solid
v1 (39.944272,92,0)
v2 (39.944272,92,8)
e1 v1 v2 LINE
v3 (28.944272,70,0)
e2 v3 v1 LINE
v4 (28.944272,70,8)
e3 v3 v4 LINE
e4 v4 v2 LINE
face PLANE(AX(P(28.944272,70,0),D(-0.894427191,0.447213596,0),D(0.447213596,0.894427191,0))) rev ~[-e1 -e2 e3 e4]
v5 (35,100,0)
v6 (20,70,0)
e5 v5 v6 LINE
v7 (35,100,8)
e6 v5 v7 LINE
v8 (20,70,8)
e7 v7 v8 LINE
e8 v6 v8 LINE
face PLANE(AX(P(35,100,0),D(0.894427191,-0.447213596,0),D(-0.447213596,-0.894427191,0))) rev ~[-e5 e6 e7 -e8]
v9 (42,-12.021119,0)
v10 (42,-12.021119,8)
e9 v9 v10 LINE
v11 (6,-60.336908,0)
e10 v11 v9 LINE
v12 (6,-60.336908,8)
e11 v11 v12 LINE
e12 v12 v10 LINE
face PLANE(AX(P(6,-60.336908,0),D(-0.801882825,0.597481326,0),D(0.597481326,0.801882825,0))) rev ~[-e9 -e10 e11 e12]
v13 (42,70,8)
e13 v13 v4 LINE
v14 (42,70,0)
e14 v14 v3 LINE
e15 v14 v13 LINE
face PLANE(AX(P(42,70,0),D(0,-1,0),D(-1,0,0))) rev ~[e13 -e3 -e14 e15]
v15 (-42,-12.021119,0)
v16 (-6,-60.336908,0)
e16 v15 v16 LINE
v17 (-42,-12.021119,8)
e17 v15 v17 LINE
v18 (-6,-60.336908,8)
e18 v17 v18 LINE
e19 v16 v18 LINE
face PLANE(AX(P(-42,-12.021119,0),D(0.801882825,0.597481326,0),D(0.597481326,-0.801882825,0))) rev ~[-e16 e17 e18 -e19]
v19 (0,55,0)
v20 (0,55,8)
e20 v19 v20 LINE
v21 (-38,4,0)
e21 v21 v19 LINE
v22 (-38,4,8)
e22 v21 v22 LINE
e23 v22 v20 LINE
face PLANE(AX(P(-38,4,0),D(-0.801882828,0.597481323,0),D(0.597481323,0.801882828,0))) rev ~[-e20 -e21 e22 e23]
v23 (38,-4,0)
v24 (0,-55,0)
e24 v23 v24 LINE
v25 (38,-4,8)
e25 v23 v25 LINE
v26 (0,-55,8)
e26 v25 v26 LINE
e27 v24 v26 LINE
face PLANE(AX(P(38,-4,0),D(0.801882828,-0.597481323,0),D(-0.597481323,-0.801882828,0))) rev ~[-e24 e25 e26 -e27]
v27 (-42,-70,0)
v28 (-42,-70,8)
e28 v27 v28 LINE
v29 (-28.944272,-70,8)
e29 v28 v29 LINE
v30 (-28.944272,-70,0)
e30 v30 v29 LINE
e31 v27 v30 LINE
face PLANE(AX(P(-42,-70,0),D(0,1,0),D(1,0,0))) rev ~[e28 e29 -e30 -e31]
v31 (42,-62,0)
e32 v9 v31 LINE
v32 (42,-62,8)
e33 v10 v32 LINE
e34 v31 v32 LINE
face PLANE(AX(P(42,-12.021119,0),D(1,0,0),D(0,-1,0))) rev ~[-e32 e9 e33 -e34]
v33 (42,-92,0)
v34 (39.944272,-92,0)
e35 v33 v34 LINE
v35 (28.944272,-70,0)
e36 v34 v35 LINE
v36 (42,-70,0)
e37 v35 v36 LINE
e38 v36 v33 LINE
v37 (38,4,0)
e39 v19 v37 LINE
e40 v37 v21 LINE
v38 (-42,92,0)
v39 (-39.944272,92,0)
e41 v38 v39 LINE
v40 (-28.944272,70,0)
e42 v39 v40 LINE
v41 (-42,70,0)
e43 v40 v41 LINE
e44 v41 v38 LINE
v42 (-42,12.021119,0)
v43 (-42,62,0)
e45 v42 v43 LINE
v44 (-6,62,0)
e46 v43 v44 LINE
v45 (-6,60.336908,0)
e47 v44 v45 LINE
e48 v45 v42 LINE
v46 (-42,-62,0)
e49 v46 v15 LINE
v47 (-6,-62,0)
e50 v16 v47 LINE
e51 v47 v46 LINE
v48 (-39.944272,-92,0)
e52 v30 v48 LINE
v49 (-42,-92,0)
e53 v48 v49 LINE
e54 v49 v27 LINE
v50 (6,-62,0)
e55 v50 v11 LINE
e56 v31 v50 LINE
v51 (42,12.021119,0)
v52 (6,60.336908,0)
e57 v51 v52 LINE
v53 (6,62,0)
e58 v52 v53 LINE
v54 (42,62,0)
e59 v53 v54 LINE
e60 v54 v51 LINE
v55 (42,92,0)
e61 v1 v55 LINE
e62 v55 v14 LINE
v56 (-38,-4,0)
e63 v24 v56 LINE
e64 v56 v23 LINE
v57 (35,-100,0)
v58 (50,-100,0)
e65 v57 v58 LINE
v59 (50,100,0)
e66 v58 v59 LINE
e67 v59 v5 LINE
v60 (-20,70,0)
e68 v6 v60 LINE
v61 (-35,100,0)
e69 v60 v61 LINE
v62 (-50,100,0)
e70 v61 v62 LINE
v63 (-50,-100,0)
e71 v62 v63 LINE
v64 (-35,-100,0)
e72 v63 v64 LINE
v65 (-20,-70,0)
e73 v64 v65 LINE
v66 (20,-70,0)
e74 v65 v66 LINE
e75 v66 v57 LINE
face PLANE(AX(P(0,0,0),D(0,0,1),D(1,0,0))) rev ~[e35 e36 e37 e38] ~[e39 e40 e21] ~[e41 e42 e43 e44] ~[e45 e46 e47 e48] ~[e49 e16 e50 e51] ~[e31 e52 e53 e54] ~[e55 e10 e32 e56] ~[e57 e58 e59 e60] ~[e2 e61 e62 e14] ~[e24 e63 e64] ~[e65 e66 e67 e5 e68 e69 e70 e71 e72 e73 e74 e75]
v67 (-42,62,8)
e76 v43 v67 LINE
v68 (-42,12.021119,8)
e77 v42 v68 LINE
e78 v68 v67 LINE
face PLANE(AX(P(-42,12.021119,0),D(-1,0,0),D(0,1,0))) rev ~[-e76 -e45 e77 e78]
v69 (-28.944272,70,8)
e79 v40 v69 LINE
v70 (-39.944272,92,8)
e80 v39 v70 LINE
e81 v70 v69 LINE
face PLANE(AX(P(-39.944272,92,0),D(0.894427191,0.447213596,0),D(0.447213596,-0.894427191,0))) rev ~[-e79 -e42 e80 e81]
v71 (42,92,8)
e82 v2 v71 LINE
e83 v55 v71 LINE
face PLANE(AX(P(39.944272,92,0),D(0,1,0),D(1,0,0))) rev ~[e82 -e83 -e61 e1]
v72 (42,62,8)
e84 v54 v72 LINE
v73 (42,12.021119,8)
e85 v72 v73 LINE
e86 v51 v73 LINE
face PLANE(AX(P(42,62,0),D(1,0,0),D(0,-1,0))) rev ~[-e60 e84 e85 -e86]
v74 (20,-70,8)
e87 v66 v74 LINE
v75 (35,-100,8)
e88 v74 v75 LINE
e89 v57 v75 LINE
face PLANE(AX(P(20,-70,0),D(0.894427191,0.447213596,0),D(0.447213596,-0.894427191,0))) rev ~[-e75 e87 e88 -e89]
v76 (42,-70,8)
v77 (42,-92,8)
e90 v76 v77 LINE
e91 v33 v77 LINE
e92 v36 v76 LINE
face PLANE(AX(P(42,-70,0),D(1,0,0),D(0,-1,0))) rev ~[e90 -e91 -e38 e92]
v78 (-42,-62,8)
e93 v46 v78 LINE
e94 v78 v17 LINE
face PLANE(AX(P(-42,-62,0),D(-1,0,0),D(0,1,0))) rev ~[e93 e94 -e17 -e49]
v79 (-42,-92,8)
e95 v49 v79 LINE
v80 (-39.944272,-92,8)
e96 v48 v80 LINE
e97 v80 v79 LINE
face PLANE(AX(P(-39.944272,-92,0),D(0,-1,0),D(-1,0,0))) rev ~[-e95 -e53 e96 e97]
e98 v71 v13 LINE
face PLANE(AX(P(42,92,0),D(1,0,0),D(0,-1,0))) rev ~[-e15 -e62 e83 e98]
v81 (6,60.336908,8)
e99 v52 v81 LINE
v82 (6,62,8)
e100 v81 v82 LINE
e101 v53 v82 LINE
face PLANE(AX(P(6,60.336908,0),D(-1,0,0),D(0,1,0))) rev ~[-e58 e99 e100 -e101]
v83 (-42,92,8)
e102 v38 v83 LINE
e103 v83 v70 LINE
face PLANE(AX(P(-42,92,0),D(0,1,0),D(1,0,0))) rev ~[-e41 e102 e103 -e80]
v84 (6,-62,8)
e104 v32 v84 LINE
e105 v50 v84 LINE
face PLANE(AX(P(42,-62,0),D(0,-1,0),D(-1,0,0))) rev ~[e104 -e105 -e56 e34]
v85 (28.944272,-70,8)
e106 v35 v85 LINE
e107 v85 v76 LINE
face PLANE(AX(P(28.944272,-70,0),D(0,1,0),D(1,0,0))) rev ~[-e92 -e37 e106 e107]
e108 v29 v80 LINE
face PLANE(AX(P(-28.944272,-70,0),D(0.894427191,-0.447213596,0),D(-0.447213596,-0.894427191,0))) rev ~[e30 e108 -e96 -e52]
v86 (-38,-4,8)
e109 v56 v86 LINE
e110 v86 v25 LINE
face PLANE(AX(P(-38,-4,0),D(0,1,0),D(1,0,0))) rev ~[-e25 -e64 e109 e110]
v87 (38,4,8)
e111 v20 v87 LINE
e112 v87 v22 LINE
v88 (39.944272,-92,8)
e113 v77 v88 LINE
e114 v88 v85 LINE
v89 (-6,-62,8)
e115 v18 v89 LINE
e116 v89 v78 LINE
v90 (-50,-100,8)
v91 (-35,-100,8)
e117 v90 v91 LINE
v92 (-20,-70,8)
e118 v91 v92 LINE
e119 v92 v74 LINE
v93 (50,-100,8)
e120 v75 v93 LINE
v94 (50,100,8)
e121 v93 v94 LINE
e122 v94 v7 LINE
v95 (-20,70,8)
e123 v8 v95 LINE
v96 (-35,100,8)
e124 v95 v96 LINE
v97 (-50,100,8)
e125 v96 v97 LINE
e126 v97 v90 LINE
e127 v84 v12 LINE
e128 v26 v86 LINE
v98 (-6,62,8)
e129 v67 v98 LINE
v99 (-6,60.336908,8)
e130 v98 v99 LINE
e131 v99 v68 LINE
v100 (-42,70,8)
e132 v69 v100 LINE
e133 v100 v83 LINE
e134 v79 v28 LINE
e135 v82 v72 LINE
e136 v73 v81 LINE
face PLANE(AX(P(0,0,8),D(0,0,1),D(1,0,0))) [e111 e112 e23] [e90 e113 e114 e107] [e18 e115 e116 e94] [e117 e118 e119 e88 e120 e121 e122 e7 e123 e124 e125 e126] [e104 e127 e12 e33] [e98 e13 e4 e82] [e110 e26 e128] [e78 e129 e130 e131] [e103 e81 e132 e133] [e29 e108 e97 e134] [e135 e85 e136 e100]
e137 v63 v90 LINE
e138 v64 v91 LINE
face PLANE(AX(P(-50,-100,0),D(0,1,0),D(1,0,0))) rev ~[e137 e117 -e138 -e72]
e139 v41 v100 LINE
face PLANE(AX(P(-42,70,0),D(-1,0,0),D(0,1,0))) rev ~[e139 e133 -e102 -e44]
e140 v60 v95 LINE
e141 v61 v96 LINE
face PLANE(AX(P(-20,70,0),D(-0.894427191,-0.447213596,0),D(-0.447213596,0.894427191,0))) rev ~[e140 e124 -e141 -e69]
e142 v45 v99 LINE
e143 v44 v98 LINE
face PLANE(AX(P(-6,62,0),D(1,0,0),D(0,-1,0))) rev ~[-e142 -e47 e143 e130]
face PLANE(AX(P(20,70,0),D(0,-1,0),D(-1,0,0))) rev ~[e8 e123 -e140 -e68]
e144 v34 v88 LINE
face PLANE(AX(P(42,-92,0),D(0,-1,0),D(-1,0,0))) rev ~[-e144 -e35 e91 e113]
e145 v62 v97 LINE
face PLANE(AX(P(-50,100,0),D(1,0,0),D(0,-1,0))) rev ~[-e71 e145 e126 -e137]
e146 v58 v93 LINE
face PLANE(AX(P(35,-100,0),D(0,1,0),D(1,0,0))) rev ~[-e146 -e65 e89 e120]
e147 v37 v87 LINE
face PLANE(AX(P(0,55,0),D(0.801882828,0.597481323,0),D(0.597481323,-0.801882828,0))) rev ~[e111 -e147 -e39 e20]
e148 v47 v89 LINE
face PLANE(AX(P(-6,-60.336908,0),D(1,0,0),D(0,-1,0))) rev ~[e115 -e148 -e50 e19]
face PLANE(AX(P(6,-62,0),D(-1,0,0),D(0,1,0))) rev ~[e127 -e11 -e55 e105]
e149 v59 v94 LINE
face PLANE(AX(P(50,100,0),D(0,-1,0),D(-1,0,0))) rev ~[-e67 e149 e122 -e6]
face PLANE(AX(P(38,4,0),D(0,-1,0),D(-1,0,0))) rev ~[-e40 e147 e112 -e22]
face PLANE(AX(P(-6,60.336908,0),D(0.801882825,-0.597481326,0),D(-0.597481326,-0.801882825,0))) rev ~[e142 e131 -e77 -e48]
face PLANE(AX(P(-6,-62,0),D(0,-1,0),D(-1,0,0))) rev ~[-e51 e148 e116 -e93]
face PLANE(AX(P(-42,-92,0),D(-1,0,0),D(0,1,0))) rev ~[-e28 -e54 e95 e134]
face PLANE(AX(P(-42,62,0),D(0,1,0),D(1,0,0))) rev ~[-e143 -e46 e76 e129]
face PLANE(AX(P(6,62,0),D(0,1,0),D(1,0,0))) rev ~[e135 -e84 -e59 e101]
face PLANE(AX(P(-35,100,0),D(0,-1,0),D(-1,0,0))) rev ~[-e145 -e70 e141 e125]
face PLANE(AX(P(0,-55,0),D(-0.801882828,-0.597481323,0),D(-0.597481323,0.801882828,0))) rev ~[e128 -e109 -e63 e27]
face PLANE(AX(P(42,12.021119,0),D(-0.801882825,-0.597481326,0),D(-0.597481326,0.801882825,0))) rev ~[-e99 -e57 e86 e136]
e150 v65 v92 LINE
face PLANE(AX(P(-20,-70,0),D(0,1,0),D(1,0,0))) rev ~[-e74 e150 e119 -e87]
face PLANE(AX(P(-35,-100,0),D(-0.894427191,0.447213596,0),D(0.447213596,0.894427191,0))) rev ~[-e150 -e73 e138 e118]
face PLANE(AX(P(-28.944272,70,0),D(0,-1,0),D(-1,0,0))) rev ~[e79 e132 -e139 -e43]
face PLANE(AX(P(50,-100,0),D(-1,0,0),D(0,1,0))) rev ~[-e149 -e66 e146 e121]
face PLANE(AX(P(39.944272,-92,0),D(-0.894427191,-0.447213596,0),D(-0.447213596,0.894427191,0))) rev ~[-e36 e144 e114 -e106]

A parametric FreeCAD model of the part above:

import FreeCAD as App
import Part
import Sketcher

V = App.Vector


def add_polygon(sketch, points):
    """Adds a closed chain of lines whose ends are joined by coincident constraints."""
    first, n = sketch.GeometryCount, len(points)
    for a, b in zip(points, points[1:] + points[:1]):
        sketch.addGeometry(Part.LineSegment(App.Vector(*a, 0), App.Vector(*b, 0)), False)
    for i in range(n):
        sketch.addConstraint(Sketcher.Constraint("Coincident", first + i, 2, first + (i + 1) % n, 1))

doc = App.newDocument("Part")
body = doc.addObject("PartDesign::Body", "Body")

sketch1 = doc.addObject("Sketcher::SketchObject", "Sketch")
body.addObject(sketch1)
sketch1.AttachmentSupport = (doc.XY_Plane, [""])
sketch1.MapMode = "FlatFace"
add_polygon(sketch1, [(-50, 100), (-50, -100), (-35, -100), (-20, -70), (20, -70), (35, -100), (50, -100), (50, 100), (35, 100), (20, 70), (-20, 70), (-35, 100)])
add_polygon(sketch1, [(-28.9, -70), (-39.9, -92), (-42, -92), (-42, -70)])
add_polygon(sketch1, [(-42, -62), (-42, -12), (-6, -60.3), (-6, -62)])
add_polygon(sketch1, [(28.9, -70), (42, -70), (42, -92), (39.9, -92)])
add_polygon(sketch1, [(38, -4), (0, -55), (-38, -4)])
add_polygon(sketch1, [(42, -62), (6, -62), (6, -60.3), (42, -12)])
add_polygon(sketch1, [(-42, 62), (-6, 62), (-6, 60.3), (-42, 12)])
add_polygon(sketch1, [(-42, 70), (-42, 92), (-39.9, 92), (-28.9, 70)])
add_polygon(sketch1, [(38, 4), (-38, 4), (0, 55)])
add_polygon(sketch1, [(42, 62), (42, 12), (6, 60.3), (6, 62)])
add_polygon(sketch1, [(28.9, 70), (39.9, 92), (42, 92), (42, 70)])
sketch1.addConstraint([
    Sketcher.Constraint("Vertical", 0),
    Sketcher.Constraint("Horizontal", 1),
    Sketcher.Constraint("Horizontal", 3),
    Sketcher.Constraint("Horizontal", 5),
    Sketcher.Constraint("Vertical", 6),
    Sketcher.Constraint("Horizontal", 7),
    Sketcher.Constraint("Horizontal", 9),
    Sketcher.Constraint("Horizontal", 11),
    Sketcher.Constraint("Horizontal", 13),
    Sketcher.Constraint("Vertical", 14),
    Sketcher.Constraint("Horizontal", 15),
    Sketcher.Constraint("Vertical", 16),
    Sketcher.Constraint("Vertical", 18),
    Sketcher.Constraint("Horizontal", 19),
    Sketcher.Constraint("Horizontal", 20),
    Sketcher.Constraint("Vertical", 21),
    Sketcher.Constraint("Horizontal", 22),
    Sketcher.Constraint("Horizontal", 26),
    Sketcher.Constraint("Horizontal", 27),
    Sketcher.Constraint("Vertical", 28),
    Sketcher.Constraint("Vertical", 30),
    Sketcher.Constraint("Horizontal", 31),
    Sketcher.Constraint("Vertical", 32),
    Sketcher.Constraint("Vertical", 34),
    Sketcher.Constraint("Vertical", 35),
    Sketcher.Constraint("Horizontal", 36),
    Sketcher.Constraint("Horizontal", 38),
    Sketcher.Constraint("Horizontal", 39),
    Sketcher.Constraint("Vertical", 42),
    Sketcher.Constraint("Vertical", 44),
    Sketcher.Constraint("Horizontal", 45),
    Sketcher.Constraint("Horizontal", 47),
    Sketcher.Constraint("Vertical", 48),
    Sketcher.Constraint("Horizontal", 49),
    Sketcher.Constraint("Symmetric", 0, 2, 6, 2, -1, 1),
    Sketcher.Constraint("Symmetric", 2, 2, 8, 2, -1, 1),
    Sketcher.Constraint("Symmetric", 4, 2, 10, 2, -1, 1),
    Sketcher.Constraint("Symmetric", 27, 2, 31, 2, -1, 1),
    Sketcher.Constraint("Symmetric", 29, 2, 33, 2, -1, 1),
    Sketcher.Constraint("Symmetric", 21, 2, 35, 2, -1, 1),
    Sketcher.Constraint("Symmetric", 23, 2, 37, 2, -1, 1),
    Sketcher.Constraint("Symmetric", 26, 2, 39, 2, -1, 1),
    Sketcher.Constraint("Symmetric", 24, 2, 40, 2, -1, 1),
    Sketcher.Constraint("Symmetric", 16, 2, 42, 2, -1, 1),
    Sketcher.Constraint("Symmetric", 17, 2, 43, 2, -1, 1),
    Sketcher.Constraint("Symmetric", 12, 2, 46, 2, -1, 1),
    Sketcher.Constraint("Symmetric", 14, 2, 48, 2, -1, 1),
    Sketcher.Constraint("Symmetric", 1, 2, 4, 2, -2),
    Sketcher.Constraint("Symmetric", 14, 2, 20, 2, -2),
    Sketcher.Constraint("Symmetric", 12, 2, 22, 2, -2),
    Sketcher.Constraint("Symmetric", 18, 2, 27, 2, -2),
    Sketcher.Constraint("Symmetric", 16, 2, 29, 2, -2),
    Sketcher.Constraint("PointOnObject", 24, 2, -2),
    Sketcher.Constraint("Parallel", 2, 8),
    Sketcher.Constraint("Parallel", 4, 10),
    Sketcher.Constraint("Parallel", 8, 12),
    Sketcher.Constraint("Parallel", 10, 23),
    Sketcher.Constraint("Parallel", 17, 25),
    Sketcher.Constraint("Parallel", 24, 29),
    Sketcher.Constraint("Parallel", 29, 33),
    Sketcher.Constraint("Parallel", 23, 37),
    Sketcher.Constraint("Parallel", 25, 41),
    Sketcher.Constraint("Parallel", 12, 46),
    Sketcher.Constraint("Horizontal", 3, 2, 14, 2),
    Sketcher.Constraint("Horizontal", 17, 2, 28, 2),
    Sketcher.Constraint("Horizontal", 34, 2, 44, 2),
    Sketcher.Constraint("Vertical", 3, 2, 8, 2),
    Sketcher.Constraint("Vertical", 14, 2, 16, 2),
    Sketcher.Constraint("DistanceX", 1, 1, 1, 2, 15.0),
    Sketcher.Constraint("DistanceX", 3, 1, 3, 2, 40.0),
    Sketcher.Constraint("DistanceX", 19, 2, 19, 1, 36.0),
    Sketcher.Constraint("DistanceX", 26, 1, 26, 2, 76.0),
    Sketcher.Constraint("DistanceY", 0, 2, 0, 1, 200.0),
    Sketcher.Constraint("DistanceY", 14, 1, 14, 2, 22.0),
    Sketcher.Constraint("DistanceX", 0, 2, -1, 1, 50.0),
    Sketcher.Constraint("DistanceY", 2, 2, -1, 1, 70.0),
    Sketcher.Constraint("DistanceX", 13, 2, -1, 1, 42.0),
    Sketcher.Constraint("DistanceY", 18, 2, -1, 1, 62.0),
    Sketcher.Constraint("DistanceY", 24, 2, -1, 1, 55.0),
    Sketcher.Constraint("DistanceY", 25, 2, -1, 1, 4.0),
    Sketcher.Constraint("DistanceX", 13, 2, 13, 1, 2.055728),
    Sketcher.Constraint("DistanceY", 16, 1, 16, 2, 49.978881),
])
pad1 = doc.addObject("PartDesign::Pad", "Pad")
body.addObject(pad1)
pad1.Profile = sketch1
pad1.Length = 8

doc.recompute()
